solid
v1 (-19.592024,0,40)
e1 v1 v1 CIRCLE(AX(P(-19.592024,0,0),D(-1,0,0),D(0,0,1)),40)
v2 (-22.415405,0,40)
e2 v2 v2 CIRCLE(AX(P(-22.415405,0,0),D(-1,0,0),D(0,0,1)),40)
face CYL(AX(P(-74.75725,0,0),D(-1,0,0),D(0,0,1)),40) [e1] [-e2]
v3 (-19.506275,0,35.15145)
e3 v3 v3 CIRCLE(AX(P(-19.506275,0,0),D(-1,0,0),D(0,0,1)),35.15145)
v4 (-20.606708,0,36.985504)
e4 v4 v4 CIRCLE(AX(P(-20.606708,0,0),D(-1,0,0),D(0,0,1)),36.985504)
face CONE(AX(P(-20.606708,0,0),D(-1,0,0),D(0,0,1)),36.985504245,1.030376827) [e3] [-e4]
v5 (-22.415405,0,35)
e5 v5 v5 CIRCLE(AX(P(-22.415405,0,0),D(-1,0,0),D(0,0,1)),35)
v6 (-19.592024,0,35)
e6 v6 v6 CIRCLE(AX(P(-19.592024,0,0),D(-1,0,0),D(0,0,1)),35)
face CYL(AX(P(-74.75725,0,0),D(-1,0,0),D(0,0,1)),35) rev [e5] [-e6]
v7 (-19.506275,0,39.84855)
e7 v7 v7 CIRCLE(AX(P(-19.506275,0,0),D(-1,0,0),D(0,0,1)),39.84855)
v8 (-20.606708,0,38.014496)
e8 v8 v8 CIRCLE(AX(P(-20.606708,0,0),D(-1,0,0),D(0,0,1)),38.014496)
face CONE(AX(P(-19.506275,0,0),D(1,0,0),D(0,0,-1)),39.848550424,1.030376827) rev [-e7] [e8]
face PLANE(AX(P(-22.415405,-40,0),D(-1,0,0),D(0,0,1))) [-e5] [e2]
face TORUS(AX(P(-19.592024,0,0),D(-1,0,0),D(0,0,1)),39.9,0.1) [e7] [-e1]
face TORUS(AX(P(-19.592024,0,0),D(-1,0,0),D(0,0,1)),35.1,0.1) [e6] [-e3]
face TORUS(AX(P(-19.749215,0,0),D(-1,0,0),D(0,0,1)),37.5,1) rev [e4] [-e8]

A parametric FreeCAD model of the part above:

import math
import FreeCAD as App
import Part
import Sketcher
Q = App.Units.Quantity

doc = App.newDocument("Part")
body = doc.addObject("PartDesign::Body", "Body")

sketch1 = body.newObject("Sketcher::SketchObject", "Sketch")
sketch1.AttachmentSupport = (doc.getObject("XY_Plane"), [""])
sketch1.MapMode = "FlatFace"
sketch1.addGeometry(Part.LineSegment(App.Vector(-22.42, -40, 0), App.Vector(-19.59, -40, 0)), False)
sketch1.addGeometry(Part.ArcOfCircle(Part.Circle(App.Vector(-19.59, -39.9, 0), App.Vector(0, 0, 1), 0.1), math.radians(-90), math.radians(31)), False)
sketch1.addGeometry(Part.LineSegment(App.Vector(-19.51, -39.85, 0), App.Vector(-20.61, -38.01, 0)), False)
sketch1.addGeometry(Part.ArcOfCircle(Part.Circle(App.Vector(-19.75, -37.5, 0), App.Vector(0, 0, 1), 1), math.radians(149), math.radians(211)), False)
sketch1.addGeometry(Part.LineSegment(App.Vector(-20.61, -36.99, 0), App.Vector(-19.51, -35.15, 0)), False)
sketch1.addGeometry(Part.ArcOfCircle(Part.Circle(App.Vector(-19.59, -35.1, 0), App.Vector(0, 0, 1), 0.1), math.radians(-31), math.radians(90)), False)
sketch1.addGeometry(Part.LineSegment(App.Vector(-19.59, -35, 0), App.Vector(-22.42, -35, 0)), False)
sketch1.addGeometry(Part.LineSegment(App.Vector(-22.42, -35, 0), App.Vector(-22.42, -40, 0)), False)
sketch1.addConstraint(Sketcher.Constraint("Tangent", 0, 2, 1, 1))
sketch1.addConstraint(Sketcher.Constraint("Tangent", 1, 2, 2, 1))
sketch1.addConstraint(Sketcher.Constraint("Tangent", 2, 2, 3, 2))
sketch1.addConstraint(Sketcher.Constraint("Tangent", 3, 1, 4, 1))
sketch1.addConstraint(Sketcher.Constraint("Tangent", 4, 2, 5, 1))
sketch1.addConstraint(Sketcher.Constraint("Tangent", 5, 2, 6, 1))
sketch1.addConstraint(Sketcher.Constraint("Coincident", 6, 2, 7, 1))
sketch1.addConstraint(Sketcher.Constraint("Coincident", 7, 2, 0, 1))
sketch1.addConstraint(Sketcher.Constraint("Horizontal", 0))
sketch1.addConstraint(Sketcher.Constraint("Horizontal", 6))
sketch1.addConstraint(Sketcher.Constraint("Vertical", 7))
sketch1.addConstraint(Sketcher.Constraint("Equal", 1, 5))
sketch1.addConstraint(Sketcher.Constraint("Vertical", 1, 3, 5, 3))
sketch1.addConstraint(Sketcher.Constraint("Vertical", 2, 2, 3, 1))
sketch1.addConstraint(Sketcher.Constraint("Radius", 3, Q("1 mm")))
sketch1.addConstraint(Sketcher.Constraint("Radius", 1, Q("0.1 mm")))
sketch1.addConstraint(Sketcher.Constraint("DistanceY", 7, 2, 7, 1, Q("5 mm")))
sketch1.addConstraint(Sketcher.Constraint("DistanceY", 0, 2, -1, 1, Q("40 mm")))
sketch1.addConstraint(Sketcher.Constraint("DistanceX", 0, 1, 0, 2, Q("2.823381 mm")))
sketch1.addConstraint(Sketcher.Constraint("DistanceY", 1, 2, 4, 2, Q("4.697101 mm")))
sketch1.addConstraint(Sketcher.Constraint("DistanceX", 1, 3, -1, 1, Q("19.592024 mm")))
revolution = body.newObject("PartDesign::Revolution", "Revolution")
revolution.Profile = sketch1
revolution.ReferenceAxis = (sketch1, ["H_Axis"])
revolution.Angle = 360

doc.recompute()
